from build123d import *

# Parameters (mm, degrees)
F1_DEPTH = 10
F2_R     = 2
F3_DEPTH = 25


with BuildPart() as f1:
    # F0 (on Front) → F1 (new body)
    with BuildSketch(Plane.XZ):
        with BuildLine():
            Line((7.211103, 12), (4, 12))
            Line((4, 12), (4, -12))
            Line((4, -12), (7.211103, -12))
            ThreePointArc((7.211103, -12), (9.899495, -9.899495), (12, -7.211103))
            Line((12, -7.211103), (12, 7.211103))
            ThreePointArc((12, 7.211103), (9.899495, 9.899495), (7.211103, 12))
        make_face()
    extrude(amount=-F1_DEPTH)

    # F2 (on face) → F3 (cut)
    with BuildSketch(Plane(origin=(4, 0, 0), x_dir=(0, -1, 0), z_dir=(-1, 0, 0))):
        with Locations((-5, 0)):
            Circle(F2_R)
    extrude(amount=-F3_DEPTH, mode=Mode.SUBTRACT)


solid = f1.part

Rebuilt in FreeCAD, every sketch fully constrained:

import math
import FreeCAD as App
import Part
import Sketcher

V = App.Vector

doc = App.newDocument("Part")
body = doc.addObject("PartDesign::Body", "Body")

# Sketch on XZ plane
sketch1 = body.newObject("Sketcher::SketchObject", "Sketch")
sketch1.AttachmentSupport = (doc.getObject("XZ_Plane"), [""])
sketch1.MapMode = "FlatFace"
sketch1.addGeometry([
    Part.LineSegment(V(7.2, 12, 0), V(4, 12, 0)),  # 0
    Part.LineSegment(V(4, 12, 0), V(4, -12, 0)),  # 1
    Part.LineSegment(V(4, -12, 0), V(7.2, -12, 0)),  # 2
    Part.ArcOfCircle(Part.Circle(V(0, 0, 0), V(0, 0, 1), 14), math.radians(-59), math.radians(-31)),  # 3
    Part.LineSegment(V(12, -7.2, 0), V(12, 7.2, 0)),  # 4
    Part.ArcOfCircle(Part.Circle(V(0, 0, 0), V(0, 0, 1), 14), math.radians(31), math.radians(59)),  # 5
], False)
sketch1.addConstraint([
    Sketcher.Constraint("Coincident", 0, 2, 1, 1),
    Sketcher.Constraint("Coincident", 1, 2, 2, 1),
    Sketcher.Constraint("Coincident", 2, 2, 3, 1),
    Sketcher.Constraint("Coincident", 3, 2, 4, 1),
    Sketcher.Constraint("Coincident", 4, 2, 5, 1),
    Sketcher.Constraint("Coincident", 5, 2, 0, 1),
    Sketcher.Constraint("Horizontal", 0),
    Sketcher.Constraint("Vertical", 1),
    Sketcher.Constraint("Horizontal", 2),
    Sketcher.Constraint("Vertical", 4),
    Sketcher.Constraint("Coincident", 3, 3, -1, 1),
    Sketcher.Constraint("Coincident", 5, 3, -1, 1),
    Sketcher.Constraint("Equal", 3, 5),
    Sketcher.Constraint("Vertical", 2, 2, 5, 2),
    Sketcher.Constraint("DistanceY", 1, 2, 1, 1, 24.0),
    Sketcher.Constraint("DistanceX", -1, 1, 0, 2, 4.0),
    Sketcher.Constraint("DistanceX", -1, 1, 3, 2, 12.0),
    Sketcher.Constraint("Radius", 3, 14.000005),
])
pad1 = body.newObject("PartDesign::Pad", "Pad")
pad1.Profile = sketch1
pad1.Length = 10
pad1.Reversed = True

# Sketch on YZ plane
sketch2 = body.newObject("Sketcher::SketchObject", "Sketch001")
sketch2.AttachmentSupport = (doc.getObject("YZ_Plane"), [""])
sketch2.MapMode = "FlatFace"
sketch2.AttachmentOffset = App.Placement(V(0, 0, 4), App.Rotation())
sketch2.addGeometry(Part.Circle(V(5, 0, 0), V(0, 0, 1), 2), False)
sketch2.addConstraint([
    Sketcher.Constraint("PointOnObject", 0, 3, -1),
    Sketcher.Constraint("Diameter", 0, 4.0),
    Sketcher.Constraint("DistanceX", -1, 1, 0, 3, 5.0),
])
pocket1 = body.newObject("PartDesign::Pocket", "Pocket")
pocket1.Profile = sketch2
pocket1.Length = 25
pocket1.Reversed = True

doc.recompute()
